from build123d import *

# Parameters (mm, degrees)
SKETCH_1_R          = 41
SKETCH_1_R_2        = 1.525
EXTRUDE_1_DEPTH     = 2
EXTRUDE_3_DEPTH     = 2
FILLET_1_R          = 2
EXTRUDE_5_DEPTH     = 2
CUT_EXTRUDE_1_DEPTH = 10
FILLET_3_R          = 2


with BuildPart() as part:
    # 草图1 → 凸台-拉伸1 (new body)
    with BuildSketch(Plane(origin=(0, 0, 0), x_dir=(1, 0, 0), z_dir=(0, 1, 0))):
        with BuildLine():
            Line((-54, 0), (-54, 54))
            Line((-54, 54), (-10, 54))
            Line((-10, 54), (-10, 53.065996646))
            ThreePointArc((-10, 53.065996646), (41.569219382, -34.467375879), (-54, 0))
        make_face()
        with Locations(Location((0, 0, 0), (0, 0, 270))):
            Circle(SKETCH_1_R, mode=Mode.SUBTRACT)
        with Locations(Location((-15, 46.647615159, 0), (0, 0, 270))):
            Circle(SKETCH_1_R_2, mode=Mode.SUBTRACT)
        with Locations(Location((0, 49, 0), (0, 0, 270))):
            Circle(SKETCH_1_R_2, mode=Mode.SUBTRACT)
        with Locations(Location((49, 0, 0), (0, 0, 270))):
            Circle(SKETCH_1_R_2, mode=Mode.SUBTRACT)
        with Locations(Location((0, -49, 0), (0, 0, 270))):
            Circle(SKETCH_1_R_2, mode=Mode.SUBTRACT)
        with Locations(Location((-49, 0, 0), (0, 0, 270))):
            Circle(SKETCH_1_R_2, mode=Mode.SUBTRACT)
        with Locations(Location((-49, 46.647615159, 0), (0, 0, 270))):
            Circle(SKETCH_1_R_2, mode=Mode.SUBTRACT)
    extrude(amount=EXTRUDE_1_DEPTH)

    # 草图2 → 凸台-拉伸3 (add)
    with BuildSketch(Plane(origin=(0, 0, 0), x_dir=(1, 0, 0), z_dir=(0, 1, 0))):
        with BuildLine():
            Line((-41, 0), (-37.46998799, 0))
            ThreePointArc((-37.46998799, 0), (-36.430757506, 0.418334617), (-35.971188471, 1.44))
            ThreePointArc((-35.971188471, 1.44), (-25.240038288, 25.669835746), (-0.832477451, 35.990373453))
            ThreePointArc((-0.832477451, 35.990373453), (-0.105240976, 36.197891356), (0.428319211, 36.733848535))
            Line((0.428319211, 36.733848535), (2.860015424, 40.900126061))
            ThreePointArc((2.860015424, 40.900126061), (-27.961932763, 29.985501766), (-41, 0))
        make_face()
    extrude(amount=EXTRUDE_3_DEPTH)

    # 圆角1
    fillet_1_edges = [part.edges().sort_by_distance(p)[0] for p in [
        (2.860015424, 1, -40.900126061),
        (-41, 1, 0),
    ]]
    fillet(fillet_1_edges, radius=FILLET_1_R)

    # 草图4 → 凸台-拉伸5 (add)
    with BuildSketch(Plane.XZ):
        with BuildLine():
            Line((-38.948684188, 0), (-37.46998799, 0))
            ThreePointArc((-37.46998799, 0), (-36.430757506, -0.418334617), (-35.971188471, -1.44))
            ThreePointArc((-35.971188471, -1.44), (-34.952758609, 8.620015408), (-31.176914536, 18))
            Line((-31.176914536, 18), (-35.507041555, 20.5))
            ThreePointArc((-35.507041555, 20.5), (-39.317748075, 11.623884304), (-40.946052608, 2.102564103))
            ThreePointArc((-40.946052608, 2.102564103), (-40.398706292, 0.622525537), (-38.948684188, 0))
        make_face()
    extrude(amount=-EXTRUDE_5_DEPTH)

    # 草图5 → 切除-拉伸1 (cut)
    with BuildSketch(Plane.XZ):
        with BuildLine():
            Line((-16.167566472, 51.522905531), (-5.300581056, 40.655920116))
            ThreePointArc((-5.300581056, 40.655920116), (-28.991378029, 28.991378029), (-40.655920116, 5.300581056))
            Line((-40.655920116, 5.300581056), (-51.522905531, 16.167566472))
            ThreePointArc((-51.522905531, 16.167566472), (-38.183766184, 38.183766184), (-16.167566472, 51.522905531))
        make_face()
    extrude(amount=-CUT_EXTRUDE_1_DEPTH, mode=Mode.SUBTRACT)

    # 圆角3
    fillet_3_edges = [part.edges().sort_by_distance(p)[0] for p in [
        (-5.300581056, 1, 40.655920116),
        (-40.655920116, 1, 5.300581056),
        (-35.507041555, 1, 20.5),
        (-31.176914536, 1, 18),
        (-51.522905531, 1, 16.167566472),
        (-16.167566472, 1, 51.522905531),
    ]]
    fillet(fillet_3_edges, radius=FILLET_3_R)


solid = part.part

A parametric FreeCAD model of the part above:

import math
import FreeCAD as App
import Part
import Sketcher
from FreeCAD import Vector
Q = App.Units.Quantity


def edges_at(feature, points):
    """Names of the edges that pass closest to the given points."""
    edges = feature.Shape.Edges
    near = lambda p: min(range(len(edges)), key=lambda i: edges[i].distToShape(Part.Vertex(*p))[0])
    return sorted({f"Edge{near(p) + 1}" for p in points})

doc = App.newDocument("Part")
body = doc.addObject("PartDesign::Body", "Body")

# Sketch on XZ plane
sketch1 = doc.addObject("Sketcher::SketchObject", "Sketch")
body.addObject(sketch1)
sketch1.AttachmentSupport = (doc.XZ_Plane, [""])
sketch1.MapMode = "FlatFace"
sketch1.addGeometry(Part.LineSegment(Vector(-54, -54, 0), Vector(-54, 0, 0)), False)
sketch1.addGeometry(Part.ArcOfCircle(Part.Circle(Vector(0, 0, 0), Vector(0, 0, 1), 54), math.radians(-101), math.radians(180)), False)
sketch1.addGeometry(Part.LineSegment(Vector(-10, -53.1, 0), Vector(-10, -54, 0)), False)
sketch1.addGeometry(Part.LineSegment(Vector(-10, -54, 0), Vector(-54, -54, 0)), False)
sketch1.addGeometry(Part.Circle(Vector(0, 49, 0), Vector(0, 0, 1), 1.5), False)
sketch1.addGeometry(Part.Circle(Vector(49, 0, 0), Vector(0, 0, 1), 1.5), False)
sketch1.addGeometry(Part.Circle(Vector(0, 0, 0), Vector(0, 0, 1), 41), False)
sketch1.addGeometry(Part.Circle(Vector(-49, 0, 0), Vector(0, 0, 1), 1.5), False)
sketch1.addGeometry(Part.Circle(Vector(0, -49, 0), Vector(0, 0, 1), 1.5), False)
sketch1.addGeometry(Part.Circle(Vector(-15, -46.6, 0), Vector(0, 0, 1), 1.5), False)
sketch1.addGeometry(Part.Circle(Vector(-49, -46.6, 0), Vector(0, 0, 1), 1.5), False)
sketch1.addConstraint(Sketcher.Constraint("Tangent", 0, 2, 1, 2))
sketch1.addConstraint(Sketcher.Constraint("Coincident", 1, 1, 2, 1))
sketch1.addConstraint(Sketcher.Constraint("Coincident", 2, 2, 3, 1))
sketch1.addConstraint(Sketcher.Constraint("Coincident", 3, 2, 0, 1))
sketch1.addConstraint(Sketcher.Constraint("Vertical", 0))
sketch1.addConstraint(Sketcher.Constraint("Vertical", 2))
sketch1.addConstraint(Sketcher.Constraint("Horizontal", 3))
sketch1.addConstraint(Sketcher.Constraint("Coincident", 1, 3, -1, 1))
sketch1.addConstraint(Sketcher.Constraint("Coincident", 6, 3, -1, 1))
sketch1.addConstraint(Sketcher.Constraint("Equal", 4, 5))
sketch1.addConstraint(Sketcher.Constraint("Equal", 5, 7))
sketch1.addConstraint(Sketcher.Constraint("Equal", 7, 8))
sketch1.addConstraint(Sketcher.Constraint("Equal", 8, 9))
sketch1.addConstraint(Sketcher.Constraint("Equal", 9, 10))
sketch1.addConstraint(Sketcher.Constraint("Symmetric", 5, 3, 7, 3, -1, 1))
sketch1.addConstraint(Sketcher.Constraint("Symmetric", 4, 3, 8, 3, -1, 1))
sketch1.addConstraint(Sketcher.Constraint("PointOnObject", 4, 3, -2))
sketch1.addConstraint(Sketcher.Constraint("PointOnObject", 5, 3, -1))
sketch1.addConstraint(Sketcher.Constraint("Horizontal", 9, 3, 10, 3))
sketch1.addConstraint(Sketcher.Constraint("Vertical", 7, 3, 10, 3))
sketch1.addConstraint(Sketcher.Constraint("Diameter", 6, 82.0))
sketch1.addConstraint(Sketcher.Constraint("Radius", 1, 54.0))
sketch1.addConstraint(Sketcher.Constraint("Diameter", 4, 3.05))
sketch1.addConstraint(Sketcher.Constraint("DistanceX", 3, 2, 3, 1, 44.0))
sketch1.addConstraint(Sketcher.Constraint("DistanceY", 0, 1, 0, 2, 54.0))
sketch1.addConstraint(Sketcher.Constraint("DistanceY", -1, 1, 4, 3, 49.0))
sketch1.addConstraint(Sketcher.Constraint("DistanceX", -1, 1, 5, 3, 49.0))
sketch1.addConstraint(Sketcher.Constraint("DistanceX", 9, 3, -1, 1, 15.0))
sketch1.addConstraint(Sketcher.Constraint("DistanceY", 1, 1, 9, 3, 6.418381))
pad1 = doc.addObject("PartDesign::Pad", "Pad")
body.addObject(pad1)
pad1.Profile = sketch1
pad1.Length = 2
pad1.Reversed = True

# Sketch on XZ plane
sketch2 = doc.addObject("Sketcher::SketchObject", "Sketch001")
body.addObject(sketch2)
sketch2.AttachmentSupport = (doc.XZ_Plane, [""])
sketch2.MapMode = "FlatFace"
sketch2.addGeometry(Part.LineSegment(Vector(-41, 0, 0), Vector(-37.5, 0, 0)), False)
sketch2.addGeometry(Part.ArcOfCircle(Part.Circle(Vector(-37.5, -1.5, 0), Vector(0, 0, 1), 1.5), math.radians(2), math.radians(90)), False)
sketch2.addGeometry(Part.ArcOfCircle(Part.Circle(Vector(0, 0, 0), Vector(0, 0, 1), 36), math.radians(-178), math.radians(-91)), False)
sketch2.addGeometry(Part.ArcOfCircle(Part.Circle(Vector(-0.9, -37.5, 0), Vector(0, 0, 1), 1.5), math.radians(30), math.radians(89)), False)
sketch2.addGeometry(Part.LineSegment(Vector(0.4, -36.7, 0), Vector(2.9, -40.9, 0)), False)
sketch2.addGeometry(Part.ArcOfCircle(Part.Circle(Vector(0, 0, 0), Vector(0, 0, 1), 41), math.radians(180), math.radians(274)), False)
sketch2.addConstraint(Sketcher.Constraint("Tangent", 0, 2, 1, 2))
sketch2.addConstraint(Sketcher.Constraint("Tangent", 1, 1, 2, 1))
sketch2.addConstraint(Sketcher.Constraint("Tangent", 2, 2, 3, 2))
sketch2.addConstraint(Sketcher.Constraint("Tangent", 3, 1, 4, 1))
sketch2.addConstraint(Sketcher.Constraint("Coincident", 4, 2, 5, 2))
sketch2.addConstraint(Sketcher.Constraint("Coincident", 5, 1, 0, 1))
sketch2.addConstraint(Sketcher.Constraint("Horizontal", 0))
sketch2.addConstraint(Sketcher.Constraint("Coincident", 2, 3, -1, 1))
sketch2.addConstraint(Sketcher.Constraint("Coincident", 5, 3, -1, 1))
sketch2.addConstraint(Sketcher.Constraint("Equal", 1, 3))
sketch2.addConstraint(Sketcher.Constraint("PointOnObject", 0, 2, -1))
sketch2.addConstraint(Sketcher.Constraint("Radius", 2, 36.0))
sketch2.addConstraint(Sketcher.Constraint("Radius", 5, 41.0))
sketch2.addConstraint(Sketcher.Constraint("Radius", 1, 1.5))
sketch2.addConstraint(Sketcher.Constraint("DistanceX", -1, 1, 3, 1, 0.428319))
sketch2.addConstraint(Sketcher.Constraint("DistanceY", 3, 1, -1, 1, 36.733849))
pad2 = doc.addObject("PartDesign::Pad", "Pad001")
body.addObject(pad2)
pad2.Profile = sketch2
pad2.Length = 2
pad2.Reversed = True
doc.recompute()

fillet = doc.addObject("PartDesign::Fillet", "Fillet")
body.addObject(fillet)
fillet.Base = (pad2, edges_at(pad2, [(2.86, 1, -40.9), (-41, 1, 0)]))
fillet.Radius = 2

# Sketch on XZ plane
sketch3 = doc.addObject("Sketcher::SketchObject", "Sketch002")
body.addObject(sketch3)
sketch3.AttachmentSupport = (doc.XZ_Plane, [""])
sketch3.MapMode = "FlatFace"
sketch3.addGeometry(Part.LineSegment(Vector(-38.9, 0, 0), Vector(-37.5, 0, 0)), False)
sketch3.addGeometry(Part.ArcOfCircle(Part.Circle(Vector(-37.5, -1.5, 0), Vector(0, 0, 1), 1.5), math.radians(2), math.radians(90)), False)
sketch3.addGeometry(Part.ArcOfCircle(Part.Circle(Vector(0, 0, 0), Vector(0, 0, 1), 36), math.radians(150), math.radians(182)), False)
sketch3.addGeometry(Part.LineSegment(Vector(-31.2, 18, 0), Vector(-35.5, 20.5, 0)), False)
sketch3.addGeometry(Part.ArcOfCircle(Part.Circle(Vector(0, 0, 0), Vector(0, 0, 1), 41), math.radians(150), math.radians(177)), False)
sketch3.addGeometry(Part.ArcOfCircle(Part.Circle(Vector(-38.9, 2, 0), Vector(0, 0, 1), 2), math.radians(177), math.radians(270)), False)
sketch3.addConstraint(Sketcher.Constraint("Tangent", 0, 2, 1, 2))
sketch3.addConstraint(Sketcher.Constraint("Tangent", 1, 1, 2, 2))
sketch3.addConstraint(Sketcher.Constraint("Coincident", 2, 1, 3, 1))
sketch3.addConstraint(Sketcher.Constraint("Coincident", 3, 2, 4, 1))
sketch3.addConstraint(Sketcher.Constraint("Tangent", 4, 2, 5, 1))
sketch3.addConstraint(Sketcher.Constraint("Tangent", 5, 2, 0, 1))
sketch3.addConstraint(Sketcher.Constraint("Horizontal", 0))
sketch3.addConstraint(Sketcher.Constraint("Coincident", 2, 3, -1, 1))
sketch3.addConstraint(Sketcher.Constraint("Coincident", 4, 3, -1, 1))
sketch3.addConstraint(Sketcher.Constraint("PointOnObject", 0, 2, -1))
sketch3.addConstraint(Sketcher.Constraint("Radius", 2, 36.0))
sketch3.addConstraint(Sketcher.Constraint("Radius", 4, 41.0))
sketch3.addConstraint(Sketcher.Constraint("Radius", 5, 2.0))
sketch3.addConstraint(Sketcher.Constraint("Radius", 1, 1.5))
sketch3.addConstraint(Sketcher.Constraint("Angle", 3, Q("150 deg")))
sketch3.addConstraint(Sketcher.Constraint("DistanceY", -1, 1, 2, 1, 18.0))
pad3 = doc.addObject("PartDesign::Pad", "Pad002")
body.addObject(pad3)
pad3.Profile = sketch3
pad3.Length = 2
pad3.Reversed = True

# Sketch on XZ plane
sketch4 = doc.addObject("Sketcher::SketchObject", "Sketch003")
body.addObject(sketch4)
sketch4.AttachmentSupport = (doc.XZ_Plane, [""])
sketch4.MapMode = "FlatFace"
sketch4.addGeometry(Part.LineSegment(Vector(-5, 41, 0), Vector(-16, 52, 0)), False)
sketch4.addGeometry(Part.ArcOfCircle(Part.Circle(Vector(0, 0, 0), Vector(0, 0, 1), 54), math.radians(107), math.radians(163)), False)
sketch4.addGeometry(Part.LineSegment(Vector(-52, 16, 0), Vector(-41, 5, 0)), False)
sketch4.addGeometry(Part.ArcOfCircle(Part.Circle(Vector(0, 0, 0), Vector(0, 0, 1), 41), math.radians(97), math.radians(173)), False)
sketch4.addConstraint(Sketcher.Constraint("Coincident", 0, 2, 1, 1))
sketch4.addConstraint(Sketcher.Constraint("Coincident", 1, 2, 2, 1))
sketch4.addConstraint(Sketcher.Constraint("Coincident", 2, 2, 3, 2))
sketch4.addConstraint(Sketcher.Constraint("Coincident", 3, 1, 0, 1))
sketch4.addConstraint(Sketcher.Constraint("Coincident", 1, 3, -1, 1))
sketch4.addConstraint(Sketcher.Constraint("Coincident", 3, 3, -1, 1))
sketch4.addConstraint(Sketcher.Constraint("Parallel", 0, 2))
sketch4.addConstraint(Sketcher.Constraint("Equal", 0, 2))
sketch4.addConstraint(Sketcher.Constraint("Radius", 1, 54.0))
sketch4.addConstraint(Sketcher.Constraint("Radius", 3, 41.0))
sketch4.addConstraint(Sketcher.Constraint("Angle", 0, Q("135 deg")))
sketch4.addConstraint(Sketcher.Constraint("Distance", 0, 15.368238))
pocket1 = doc.addObject("PartDesign::Pocket", "Pocket")
body.addObject(pocket1)
pocket1.Profile = sketch4
pocket1.Length = 10
doc.recompute()

fillet2 = doc.addObject("PartDesign::Fillet", "Fillet001")
body.addObject(fillet2)
fillet2.Base = (pocket1, edges_at(pocket1, [
    (-5.301, 1, 40.656),
    (-40.656, 1, 5.301),
    (-35.507, 1, 20.5),
    (-31.177, 1, 18),
    (-51.523, 1, 16.168),
    (-16.168, 1, 51.523),
]))
fillet2.Radius = 2

doc.recompute()
